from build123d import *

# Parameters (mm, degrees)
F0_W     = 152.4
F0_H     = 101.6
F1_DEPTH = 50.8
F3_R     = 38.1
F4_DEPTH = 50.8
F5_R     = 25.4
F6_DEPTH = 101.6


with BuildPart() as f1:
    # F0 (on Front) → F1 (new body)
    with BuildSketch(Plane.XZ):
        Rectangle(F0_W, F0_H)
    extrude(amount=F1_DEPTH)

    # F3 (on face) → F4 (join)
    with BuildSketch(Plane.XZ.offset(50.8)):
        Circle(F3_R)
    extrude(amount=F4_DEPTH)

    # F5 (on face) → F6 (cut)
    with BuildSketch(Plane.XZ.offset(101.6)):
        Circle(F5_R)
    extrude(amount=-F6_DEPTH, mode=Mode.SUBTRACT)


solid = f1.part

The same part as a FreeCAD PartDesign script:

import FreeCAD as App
import Part
import Sketcher

V = App.Vector
Q = App.Units.Quantity


def add_polygon(sketch, points):
    """Adds a closed chain of lines whose ends are joined by coincident constraints."""
    first, n = sketch.GeometryCount, len(points)
    for a, b in zip(points, points[1:] + points[:1]):
        sketch.addGeometry(Part.LineSegment(App.Vector(*a, 0), App.Vector(*b, 0)), False)
    for i in range(n):
        sketch.addConstraint(Sketcher.Constraint("Coincident", first + i, 2, first + (i + 1) % n, 1))

doc = App.newDocument("Part")
params = doc.addObject("Spreadsheet::Sheet", "Params")
for row, (alias, value) in enumerate([
    ("sketch1_width", "6 in"),
    ("sketch1_height", "4 in"),
    ("pad1_length", "2 in"),
    ("sketch2_diameter", "3 in"),
    ("pad2_length", "2 in"),
    ("sketch3_diameter", "2 in"),
    ("pocket1_length", "4 in"),
], start=1):
    params.set(f"A{row}", alias)
    params.set(f"B{row}", "=" + value)
    params.setAlias(f"B{row}", alias)

body = doc.addObject("PartDesign::Body", "Body")

# Sketch on XZ plane
sketch1 = body.newObject("Sketcher::SketchObject", "Sketch")
sketch1.AttachmentSupport = (doc.getObject("XZ_Plane"), [""])
sketch1.MapMode = "FlatFace"
add_polygon(sketch1, [(-76.2, 50.8), (-76.2, -50.8), (76.2, -50.8), (76.2, 50.8)])  # lines 0-3
sketch1.addConstraint([
    Sketcher.Constraint("Vertical", 0),
    Sketcher.Constraint("Horizontal", 1),
    Sketcher.Constraint("Vertical", 2),
    Sketcher.Constraint("Horizontal", 3),
    Sketcher.Constraint("Symmetric", 0, 2, 2, 2, -1, 1),
    Sketcher.Constraint("DistanceX", 1, 1, 1, 2, Q("6 in")),
    Sketcher.Constraint("DistanceY", 0, 2, 0, 1, Q("4 in")),
])
sketch1.setExpression("Constraints[9]", "Params.sketch1_width")
sketch1.setExpression("Constraints[10]", "Params.sketch1_height")
pad1 = body.newObject("PartDesign::Pad", "Pad")
pad1.Profile = sketch1
pad1.setExpression("Length", "Params.pad1_length")

# Sketch on XZ plane
sketch2 = body.newObject("Sketcher::SketchObject", "Sketch001")
sketch2.AttachmentSupport = (doc.getObject("XZ_Plane"), [""])
sketch2.MapMode = "FlatFace"
sketch2.AttachmentOffset = App.Placement(V(0, 0, 2 * 25.4), App.Rotation())
sketch2.addGeometry(Part.Circle(V(0, 0, 0), V(0, 0, 1), 38.1), False)
sketch2.addConstraint([
    Sketcher.Constraint("Coincident", 0, 3, -1, 1),
    Sketcher.Constraint("Diameter", 0, Q("3 in")),
])
sketch2.setExpression("Constraints[1]", "Params.sketch2_diameter")
pad2 = body.newObject("PartDesign::Pad", "Pad001")
pad2.Profile = sketch2
pad2.setExpression("Length", "Params.pad2_length")

# Sketch on XZ plane
sketch3 = body.newObject("Sketcher::SketchObject", "Sketch002")
sketch3.AttachmentSupport = (doc.getObject("XZ_Plane"), [""])
sketch3.MapMode = "FlatFace"
sketch3.AttachmentOffset = App.Placement(V(0, 0, 4 * 25.4), App.Rotation())
sketch3.addGeometry(Part.Circle(V(0, 0, 0), V(0, 0, 1), 25.4), False)
sketch3.addConstraint([
    Sketcher.Constraint("Coincident", 0, 3, -1, 1),
    Sketcher.Constraint("Diameter", 0, Q("2 in")),
])
sketch3.setExpression("Constraints[1]", "Params.sketch3_diameter")
pocket1 = body.newObject("PartDesign::Pocket", "Pocket")
pocket1.Profile = sketch3
pocket1.setExpression("Length", "Params.pocket1_length")

doc.recompute()
